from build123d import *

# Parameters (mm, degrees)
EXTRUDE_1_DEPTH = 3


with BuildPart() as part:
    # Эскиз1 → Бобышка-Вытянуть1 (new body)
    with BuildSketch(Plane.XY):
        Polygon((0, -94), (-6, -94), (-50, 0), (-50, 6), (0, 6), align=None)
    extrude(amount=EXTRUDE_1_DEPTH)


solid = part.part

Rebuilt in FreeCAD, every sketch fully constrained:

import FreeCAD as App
import Part
import Sketcher

V = App.Vector
Q = App.Units.Quantity

doc = App.newDocument("Part")
body = doc.addObject("PartDesign::Body", "Body")

# Sketch on XY plane
sketch1 = body.newObject("Sketcher::SketchObject", "Sketch")
sketch1.AttachmentSupport = (doc.getObject("XY_Plane"), [""])
sketch1.MapMode = "FlatFace"
sketch1.addGeometry([
    Part.LineSegment(V(-6, -94, 0), V(0, -94, 0)),  # 0
    Part.LineSegment(V(0, -94, 0), V(0, 6, 0)),  # 1
    Part.LineSegment(V(0, 6, 0), V(-50, 6, 0)),  # 2
    Part.LineSegment(V(-50, 6, 0), V(-50, 0, 0)),  # 3
    Part.LineSegment(V(-50, 0, 0), V(-6, -94, 0)),  # 4
], False)
sketch1.addConstraint([
    Sketcher.Constraint("Coincident", 0, 2, 1, 1),
    Sketcher.Constraint("Coincident", 1, 2, 2, 1),
    Sketcher.Constraint("Coincident", 2, 2, 3, 1),
    Sketcher.Constraint("Coincident", 3, 2, 4, 1),
    Sketcher.Constraint("Coincident", 4, 2, 0, 1),
    Sketcher.Constraint("Horizontal", 0),
    Sketcher.Constraint("Vertical", 1),
    Sketcher.Constraint("Horizontal", 2),
    Sketcher.Constraint("Vertical", 3),
    Sketcher.Constraint("PointOnObject", 0, 2, -2),
    Sketcher.Constraint("PointOnObject", 3, 2, -1),
    Sketcher.Constraint("Equal", 0, 3),
    Sketcher.Constraint("DistanceX", 0, 1, 0, 2, Q("6 mm")),
    Sketcher.Constraint("DistanceX", 2, 2, 2, 1, Q("50 mm")),
    Sketcher.Constraint("DistanceY", 1, 1, 1, 2, Q("100 mm")),
])
pad1 = body.newObject("PartDesign::Pad", "Pad")
pad1.Profile = sketch1
pad1.Length = 3

doc.recompute()
